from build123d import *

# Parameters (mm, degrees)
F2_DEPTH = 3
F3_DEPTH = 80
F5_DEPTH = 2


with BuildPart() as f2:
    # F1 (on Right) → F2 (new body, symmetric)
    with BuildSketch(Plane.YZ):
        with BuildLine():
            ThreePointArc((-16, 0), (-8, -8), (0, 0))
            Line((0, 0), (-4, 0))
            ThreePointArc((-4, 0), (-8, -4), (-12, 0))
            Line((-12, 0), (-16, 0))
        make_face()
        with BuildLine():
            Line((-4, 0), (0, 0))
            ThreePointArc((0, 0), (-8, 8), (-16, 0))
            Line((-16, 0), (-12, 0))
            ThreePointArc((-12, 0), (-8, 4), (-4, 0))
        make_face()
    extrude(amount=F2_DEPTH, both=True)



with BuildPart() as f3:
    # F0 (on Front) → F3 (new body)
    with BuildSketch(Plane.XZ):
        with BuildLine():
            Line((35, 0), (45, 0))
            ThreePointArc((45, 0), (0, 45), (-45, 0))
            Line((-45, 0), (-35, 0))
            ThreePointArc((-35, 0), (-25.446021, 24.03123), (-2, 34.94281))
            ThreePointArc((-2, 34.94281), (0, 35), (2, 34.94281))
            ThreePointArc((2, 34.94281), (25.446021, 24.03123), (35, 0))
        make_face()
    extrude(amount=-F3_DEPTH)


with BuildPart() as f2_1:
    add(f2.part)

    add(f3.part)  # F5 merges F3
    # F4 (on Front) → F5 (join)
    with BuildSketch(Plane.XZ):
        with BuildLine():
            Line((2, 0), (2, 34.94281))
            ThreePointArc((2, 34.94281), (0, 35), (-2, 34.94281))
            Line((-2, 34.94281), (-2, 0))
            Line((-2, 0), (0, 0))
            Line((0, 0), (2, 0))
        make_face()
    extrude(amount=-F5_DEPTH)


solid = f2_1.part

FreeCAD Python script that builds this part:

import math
import FreeCAD as App
import Part
import Sketcher
from FreeCAD import Vector
Q = App.Units.Quantity

doc = App.newDocument("Part")
params = doc.addObject("Spreadsheet::Sheet", "Params")
for row, (alias, value) in enumerate([
    ("sketch1_diameter", "16 mm"),
    ("sketch1_diameter2", "8 mm"),
    ("pad1_length", "6 mm"),
    ("sketch2_radius", "45 mm"),
    ("sketch2_radius2", "34.999999 mm"),
    ("pad2_length", "80 mm"),
    ("sketch3_width", "4 mm"),
    ("pad3_length", "2 mm"),
], start=1):
    params.set(f"A{row}", alias)
    params.set(f"B{row}", "=" + value)
    params.setAlias(f"B{row}", alias)

body = doc.addObject("PartDesign::Body", "Body")

sketch1 = doc.addObject("Sketcher::SketchObject", "Sketch")
body.addObject(sketch1)
sketch1.AttachmentSupport = (doc.YZ_Plane, [""])
sketch1.MapMode = "FlatFace"
sketch1.addGeometry(Part.Circle(Vector(-8, 0, 0), Vector(0, 0, 1), 8), False)
sketch1.addGeometry(Part.Circle(Vector(-8, 0, 0), Vector(0, 0, 1), 4), False)
sketch1.addConstraint(Sketcher.Constraint("Coincident", 1, 3, 0, 3))
sketch1.addConstraint(Sketcher.Constraint("PointOnObject", 0, 3, -1))
sketch1.addConstraint(Sketcher.Constraint("Diameter", 0, Q("16 mm")))
sketch1.addConstraint(Sketcher.Constraint("Diameter", 1, Q("8 mm")))
sketch1.addConstraint(Sketcher.Constraint("DistanceX", 0, 3, -1, 1, Q("8 mm")))
sketch1.setExpression("Constraints[2]", "Params.sketch1_diameter")
sketch1.setExpression("Constraints[3]", "Params.sketch1_diameter2")
pad1 = doc.addObject("PartDesign::Pad", "Pad")
body.addObject(pad1)
pad1.Profile = sketch1
pad1.setExpression("Length", "Params.pad1_length")
pad1.Midplane = True
body2 = doc.addObject("PartDesign::Body", "Body001")

sketch2 = doc.addObject("Sketcher::SketchObject", "Sketch001")
body2.addObject(sketch2)
sketch2.AttachmentSupport = (doc.getObject("XZ_Plane001"), [""])
sketch2.MapMode = "FlatFace"
sketch2.addGeometry(Part.LineSegment(Vector(35, 0, 0), Vector(45, 0, 0)), False)
sketch2.addGeometry(Part.ArcOfCircle(Part.Circle(Vector(0, 0, 0), Vector(0, 0, 1), 45), math.radians(0), math.radians(180)), False)
sketch2.addGeometry(Part.LineSegment(Vector(-45, 0, 0), Vector(-35, 0, 0)), False)
sketch2.addGeometry(Part.ArcOfCircle(Part.Circle(Vector(-0.000001, 0, 0), Vector(0, 0, 1), 34.999999), math.radians(93.275828), math.radians(180.000001)), False)
sketch2.addGeometry(Part.ArcOfCircle(Part.Circle(Vector(0, 0.000256, 0), Vector(0, 0, 1), 34.999744), math.radians(86.724147), math.radians(93.275853)), False)
sketch2.addGeometry(Part.ArcOfCircle(Part.Circle(Vector(0.000001, 0, 0), Vector(0, 0, 1), 34.999999), math.radians(-0.000001), math.radians(86.724172)), False)
sketch2.addConstraint(Sketcher.Constraint("Coincident", 0, 2, 1, 1))
sketch2.addConstraint(Sketcher.Constraint("Coincident", 1, 2, 2, 1))
sketch2.addConstraint(Sketcher.Constraint("Coincident", 2, 2, 3, 2))
sketch2.addConstraint(Sketcher.Constraint("Coincident", 3, 1, 4, 2))
sketch2.addConstraint(Sketcher.Constraint("Coincident", 4, 1, 5, 2))
sketch2.addConstraint(Sketcher.Constraint("Coincident", 5, 1, 0, 1))
sketch2.addConstraint(Sketcher.Constraint("Horizontal", 0))
sketch2.addConstraint(Sketcher.Constraint("Horizontal", 2))
sketch2.addConstraint(Sketcher.Constraint("Coincident", 1, 3, -1, 1))
sketch2.addConstraint(Sketcher.Constraint("Coincident", 3, 3, -1, 1))
sketch2.addConstraint(Sketcher.Constraint("Coincident", 5, 3, -1, 1))
sketch2.addConstraint(Sketcher.Constraint("PointOnObject", 4, 3, -2))
sketch2.addConstraint(Sketcher.Constraint("PointOnObject", 0, 2, -1))
sketch2.addConstraint(Sketcher.Constraint("PointOnObject", 1, 2, -1))
sketch2.addConstraint(Sketcher.Constraint("Radius", 1, Q("45 mm")))
sketch2.addConstraint(Sketcher.Constraint("Radius", 3, Q("34.999999 mm")))
sketch2.addConstraint(Sketcher.Constraint("DistanceX", 3, 1, -1, 1, Q("2 mm")))
sketch2.addConstraint(Sketcher.Constraint("DistanceX", -1, 1, 4, 1, Q("2 mm")))
sketch2.addConstraint(Sketcher.Constraint("Radius", 4, Q("34.999744 mm")))
sketch2.setExpression("Constraints[14]", "Params.sketch2_radius")
sketch2.setExpression("Constraints[15]", "Params.sketch2_radius2")
pad2 = doc.addObject("PartDesign::Pad", "Pad001")
body2.addObject(pad2)
pad2.Profile = sketch2
pad2.setExpression("Length", "Params.pad2_length")
pad2.Reversed = True
body.AllowCompound = True
doc.recompute()

boolean = doc.addObject("PartDesign::Boolean", "Boolean")
body.addObject(boolean)
boolean.Type = "Fuse"
boolean.addObjects([body2])

sketch3 = doc.addObject("Sketcher::SketchObject", "Sketch002")
body.addObject(sketch3)
sketch3.AttachmentSupport = (doc.XZ_Plane, [""])
sketch3.MapMode = "FlatFace"
sketch3.addGeometry(Part.LineSegment(Vector(2, 0, 0), Vector(2, 34.94281, 0)), False)
sketch3.addGeometry(Part.ArcOfCircle(Part.Circle(Vector(0, 0.000256, 0), Vector(0, 0, 1), 34.999744), math.radians(86.724147), math.radians(93.275853)), False)
sketch3.addGeometry(Part.LineSegment(Vector(-2, 34.94281, 0), Vector(-2, 0, 0)), False)
sketch3.addGeometry(Part.LineSegment(Vector(-2, 0, 0), Vector(2, 0, 0)), False)
sketch3.addConstraint(Sketcher.Constraint("Coincident", 0, 2, 1, 1))
sketch3.addConstraint(Sketcher.Constraint("Coincident", 1, 2, 2, 1))
sketch3.addConstraint(Sketcher.Constraint("Coincident", 2, 2, 3, 1))
sketch3.addConstraint(Sketcher.Constraint("Coincident", 3, 2, 0, 1))
sketch3.addConstraint(Sketcher.Constraint("Vertical", 0))
sketch3.addConstraint(Sketcher.Constraint("Vertical", 2))
sketch3.addConstraint(Sketcher.Constraint("Horizontal", 3))
sketch3.addConstraint(Sketcher.Constraint("Symmetric", 2, 2, 3, 2, -1, 1))
sketch3.addConstraint(Sketcher.Constraint("PointOnObject", 1, 3, -2))
sketch3.addConstraint(Sketcher.Constraint("DistanceX", 3, 1, 3, 2, Q("4 mm")))
sketch3.addConstraint(Sketcher.Constraint("Radius", 1, Q("34.999744 mm")))
sketch3.addConstraint(Sketcher.Constraint("DistanceY", 0, 1, 0, 2, Q("34.94281 mm")))
sketch3.setExpression("Constraints[9]", "Params.sketch3_width")
pad3 = doc.addObject("PartDesign::Pad", "Pad002")
body.addObject(pad3)
pad3.Profile = sketch3
pad3.setExpression("Length", "Params.pad3_length")
pad3.Reversed = True

doc.recompute()
